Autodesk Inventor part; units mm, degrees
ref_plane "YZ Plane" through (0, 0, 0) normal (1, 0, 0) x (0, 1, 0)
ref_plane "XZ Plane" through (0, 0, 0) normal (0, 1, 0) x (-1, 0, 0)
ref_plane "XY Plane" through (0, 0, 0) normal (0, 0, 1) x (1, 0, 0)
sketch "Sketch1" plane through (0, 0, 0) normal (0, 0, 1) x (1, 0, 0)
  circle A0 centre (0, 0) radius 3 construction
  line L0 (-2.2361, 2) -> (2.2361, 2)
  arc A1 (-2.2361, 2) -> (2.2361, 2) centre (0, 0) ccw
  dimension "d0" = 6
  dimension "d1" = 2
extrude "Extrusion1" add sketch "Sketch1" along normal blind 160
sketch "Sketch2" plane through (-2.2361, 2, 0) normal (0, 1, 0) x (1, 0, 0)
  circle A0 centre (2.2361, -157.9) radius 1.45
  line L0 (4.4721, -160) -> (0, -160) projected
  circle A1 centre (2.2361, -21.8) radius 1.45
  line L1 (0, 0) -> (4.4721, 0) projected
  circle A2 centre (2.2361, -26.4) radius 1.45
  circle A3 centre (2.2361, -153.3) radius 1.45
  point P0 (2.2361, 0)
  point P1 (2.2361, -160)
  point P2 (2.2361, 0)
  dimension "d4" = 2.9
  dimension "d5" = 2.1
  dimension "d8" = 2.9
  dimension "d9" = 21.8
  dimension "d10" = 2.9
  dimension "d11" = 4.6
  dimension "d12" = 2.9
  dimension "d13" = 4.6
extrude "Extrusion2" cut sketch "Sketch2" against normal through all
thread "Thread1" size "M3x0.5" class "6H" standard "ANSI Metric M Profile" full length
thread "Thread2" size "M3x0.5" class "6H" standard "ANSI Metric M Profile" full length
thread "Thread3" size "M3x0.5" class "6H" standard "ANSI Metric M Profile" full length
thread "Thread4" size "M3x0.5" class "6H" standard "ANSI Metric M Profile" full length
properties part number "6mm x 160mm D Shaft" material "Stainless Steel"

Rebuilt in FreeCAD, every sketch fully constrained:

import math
import FreeCAD as App
import Part
import Sketcher

V = App.Vector
Q = App.Units.Quantity

doc = App.newDocument("Part")
params = doc.addObject("Spreadsheet::Sheet", "Params")
for row, (alias, value) in enumerate([
    ("sketch1_radius", "3 mm"),
    ("pad1_length", "160 mm"),
    ("sketch2_diameter", "2.9 mm"),
], start=1):
    params.set(f"A{row}", alias)
    params.set(f"B{row}", "=" + value)
    params.setAlias(f"B{row}", alias)

body = doc.addObject("PartDesign::Body", "Body")

sketch1 = body.newObject("Sketcher::SketchObject", "Sketch")
sketch1.AttachmentSupport = (doc.getObject("XY_Plane"), [""])
sketch1.MapMode = "FlatFace"
sketch1.addGeometry([
    Part.LineSegment(V(2.2361, 2, 0), V(-2.2361, 2, 0)),
    Part.ArcOfCircle(Part.Circle(V(0, 0, 0), V(0, 0, 1), 3.000024), math.radians(138.190093), math.radians(401.809907)),
], False)
sketch1.addConstraint([
    Sketcher.Constraint("Coincident", 0, 1, 1, 2),
    Sketcher.Constraint("Coincident", 1, 1, 0, 2),
    Sketcher.Constraint("Horizontal", 0),
    Sketcher.Constraint("Coincident", 1, 3, -1, 1),
    Sketcher.Constraint("Radius", 1, Q("3 mm")),
    Sketcher.Constraint("DistanceY", -1, 1, 0, 1, Q("2 mm")),
])
sketch1.setExpression("Constraints[4]", "Params.sketch1_radius")
pad1 = body.newObject("PartDesign::Pad", "Pad")
pad1.Profile = sketch1
pad1.setExpression("Length", "Params.pad1_length")

sketch2 = body.newObject("Sketcher::SketchObject", "Sketch001")
sketch2.AttachmentSupport = (doc.getObject("XZ_Plane"), [""])
sketch2.MapMode = "FlatFace"
sketch2.AttachmentOffset = App.Placement(V(0, 0, -2), App.Rotation())
sketch2.addGeometry([
    Part.Circle(V(0, 157.9, 0), V(0, 0, 1), 1.45),
    Part.Circle(V(0, 21.8, 0), V(0, 0, 1), 1.45),
    Part.Circle(V(0, 26.4, 0), V(0, 0, 1), 1.45),
    Part.Circle(V(0, 153.3, 0), V(0, 0, 1), 1.45),
], False)
sketch2.addConstraint([
    Sketcher.Constraint("Equal", 0, 1),
    Sketcher.Constraint("Equal", 1, 2),
    Sketcher.Constraint("Equal", 2, 3),
    Sketcher.Constraint("PointOnObject", 0, 3, -2),
    Sketcher.Constraint("PointOnObject", 1, 3, -2),
    Sketcher.Constraint("PointOnObject", 2, 3, -2),
    Sketcher.Constraint("PointOnObject", 3, 3, -2),
    Sketcher.Constraint("Diameter", 0, Q("2.9 mm")),
    Sketcher.Constraint("DistanceY", -1, 1, 1, 3, Q("21.8 mm")),
    Sketcher.Constraint("DistanceY", 1, 3, 2, 3, Q("4.6 mm")),
    Sketcher.Constraint("DistanceY", 3, 3, 0, 3, Q("4.6 mm")),
    Sketcher.Constraint("DistanceY", -1, 1, 0, 3, Q("157.9 mm")),
])
sketch2.setExpression("Constraints[7]", "Params.sketch2_diameter")
pocket1 = body.newObject("PartDesign::Pocket", "Pocket")
pocket1.Profile = sketch2
pocket1.Type = "ThroughAll"
pocket1.Reversed = True

doc.recompute()
